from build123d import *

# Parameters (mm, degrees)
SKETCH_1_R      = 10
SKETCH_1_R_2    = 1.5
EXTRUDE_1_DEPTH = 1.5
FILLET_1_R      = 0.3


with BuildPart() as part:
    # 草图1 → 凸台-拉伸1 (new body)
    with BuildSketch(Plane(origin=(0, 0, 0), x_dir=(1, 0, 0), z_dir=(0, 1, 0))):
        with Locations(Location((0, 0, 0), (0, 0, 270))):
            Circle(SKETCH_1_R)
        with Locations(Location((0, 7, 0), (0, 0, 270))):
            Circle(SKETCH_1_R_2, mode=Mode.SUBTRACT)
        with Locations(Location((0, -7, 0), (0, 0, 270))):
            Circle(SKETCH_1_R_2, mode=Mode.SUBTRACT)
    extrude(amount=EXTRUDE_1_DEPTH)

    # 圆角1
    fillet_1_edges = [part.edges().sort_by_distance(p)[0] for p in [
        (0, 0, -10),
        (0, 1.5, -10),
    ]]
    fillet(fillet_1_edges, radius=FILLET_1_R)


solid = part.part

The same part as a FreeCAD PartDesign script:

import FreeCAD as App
import Part
import Sketcher

V = App.Vector


def edges_at(feature, points):
    """Names of the edges that pass closest to the given points."""
    edges = feature.Shape.Edges
    near = lambda p: min(range(len(edges)), key=lambda i: edges[i].distToShape(Part.Vertex(*p))[0])
    return sorted({f"Edge{near(p) + 1}" for p in points})

doc = App.newDocument("Part")
body = doc.addObject("PartDesign::Body", "Body")

# Sketch on XZ plane
sketch1 = doc.addObject("Sketcher::SketchObject", "Sketch")
body.addObject(sketch1)
sketch1.AttachmentSupport = (doc.XZ_Plane, [""])
sketch1.MapMode = "FlatFace"
sketch1.addGeometry([
    Part.Circle(V(0, 0, 0), V(0, 0, 1), 10),
    Part.Circle(V(0, -7, 0), V(0, 0, 1), 1.5),
    Part.Circle(V(0, 7, 0), V(0, 0, 1), 1.5),
], False)
sketch1.addConstraint([
    Sketcher.Constraint("Coincident", 0, 3, -1, 1),
    Sketcher.Constraint("Equal", 1, 2),
    Sketcher.Constraint("Symmetric", 1, 3, 2, 3, -1, 1),
    Sketcher.Constraint("PointOnObject", 1, 3, -2),
    Sketcher.Constraint("Diameter", 0, 20.0),
    Sketcher.Constraint("Diameter", 1, 3.0),
    Sketcher.Constraint("DistanceY", 1, 3, -1, 1, 7.0),
])
pad1 = doc.addObject("PartDesign::Pad", "Pad")
body.addObject(pad1)
pad1.Profile = sketch1
pad1.Length = 1.5
pad1.Reversed = True
doc.recompute()

fillet = doc.addObject("PartDesign::Fillet", "Fillet")
body.addObject(fillet)
fillet.Base = (pad1, edges_at(pad1, [(0, 0, -10), (0, 1.5, -10)]))
fillet.Radius = 0.3

doc.recompute()
